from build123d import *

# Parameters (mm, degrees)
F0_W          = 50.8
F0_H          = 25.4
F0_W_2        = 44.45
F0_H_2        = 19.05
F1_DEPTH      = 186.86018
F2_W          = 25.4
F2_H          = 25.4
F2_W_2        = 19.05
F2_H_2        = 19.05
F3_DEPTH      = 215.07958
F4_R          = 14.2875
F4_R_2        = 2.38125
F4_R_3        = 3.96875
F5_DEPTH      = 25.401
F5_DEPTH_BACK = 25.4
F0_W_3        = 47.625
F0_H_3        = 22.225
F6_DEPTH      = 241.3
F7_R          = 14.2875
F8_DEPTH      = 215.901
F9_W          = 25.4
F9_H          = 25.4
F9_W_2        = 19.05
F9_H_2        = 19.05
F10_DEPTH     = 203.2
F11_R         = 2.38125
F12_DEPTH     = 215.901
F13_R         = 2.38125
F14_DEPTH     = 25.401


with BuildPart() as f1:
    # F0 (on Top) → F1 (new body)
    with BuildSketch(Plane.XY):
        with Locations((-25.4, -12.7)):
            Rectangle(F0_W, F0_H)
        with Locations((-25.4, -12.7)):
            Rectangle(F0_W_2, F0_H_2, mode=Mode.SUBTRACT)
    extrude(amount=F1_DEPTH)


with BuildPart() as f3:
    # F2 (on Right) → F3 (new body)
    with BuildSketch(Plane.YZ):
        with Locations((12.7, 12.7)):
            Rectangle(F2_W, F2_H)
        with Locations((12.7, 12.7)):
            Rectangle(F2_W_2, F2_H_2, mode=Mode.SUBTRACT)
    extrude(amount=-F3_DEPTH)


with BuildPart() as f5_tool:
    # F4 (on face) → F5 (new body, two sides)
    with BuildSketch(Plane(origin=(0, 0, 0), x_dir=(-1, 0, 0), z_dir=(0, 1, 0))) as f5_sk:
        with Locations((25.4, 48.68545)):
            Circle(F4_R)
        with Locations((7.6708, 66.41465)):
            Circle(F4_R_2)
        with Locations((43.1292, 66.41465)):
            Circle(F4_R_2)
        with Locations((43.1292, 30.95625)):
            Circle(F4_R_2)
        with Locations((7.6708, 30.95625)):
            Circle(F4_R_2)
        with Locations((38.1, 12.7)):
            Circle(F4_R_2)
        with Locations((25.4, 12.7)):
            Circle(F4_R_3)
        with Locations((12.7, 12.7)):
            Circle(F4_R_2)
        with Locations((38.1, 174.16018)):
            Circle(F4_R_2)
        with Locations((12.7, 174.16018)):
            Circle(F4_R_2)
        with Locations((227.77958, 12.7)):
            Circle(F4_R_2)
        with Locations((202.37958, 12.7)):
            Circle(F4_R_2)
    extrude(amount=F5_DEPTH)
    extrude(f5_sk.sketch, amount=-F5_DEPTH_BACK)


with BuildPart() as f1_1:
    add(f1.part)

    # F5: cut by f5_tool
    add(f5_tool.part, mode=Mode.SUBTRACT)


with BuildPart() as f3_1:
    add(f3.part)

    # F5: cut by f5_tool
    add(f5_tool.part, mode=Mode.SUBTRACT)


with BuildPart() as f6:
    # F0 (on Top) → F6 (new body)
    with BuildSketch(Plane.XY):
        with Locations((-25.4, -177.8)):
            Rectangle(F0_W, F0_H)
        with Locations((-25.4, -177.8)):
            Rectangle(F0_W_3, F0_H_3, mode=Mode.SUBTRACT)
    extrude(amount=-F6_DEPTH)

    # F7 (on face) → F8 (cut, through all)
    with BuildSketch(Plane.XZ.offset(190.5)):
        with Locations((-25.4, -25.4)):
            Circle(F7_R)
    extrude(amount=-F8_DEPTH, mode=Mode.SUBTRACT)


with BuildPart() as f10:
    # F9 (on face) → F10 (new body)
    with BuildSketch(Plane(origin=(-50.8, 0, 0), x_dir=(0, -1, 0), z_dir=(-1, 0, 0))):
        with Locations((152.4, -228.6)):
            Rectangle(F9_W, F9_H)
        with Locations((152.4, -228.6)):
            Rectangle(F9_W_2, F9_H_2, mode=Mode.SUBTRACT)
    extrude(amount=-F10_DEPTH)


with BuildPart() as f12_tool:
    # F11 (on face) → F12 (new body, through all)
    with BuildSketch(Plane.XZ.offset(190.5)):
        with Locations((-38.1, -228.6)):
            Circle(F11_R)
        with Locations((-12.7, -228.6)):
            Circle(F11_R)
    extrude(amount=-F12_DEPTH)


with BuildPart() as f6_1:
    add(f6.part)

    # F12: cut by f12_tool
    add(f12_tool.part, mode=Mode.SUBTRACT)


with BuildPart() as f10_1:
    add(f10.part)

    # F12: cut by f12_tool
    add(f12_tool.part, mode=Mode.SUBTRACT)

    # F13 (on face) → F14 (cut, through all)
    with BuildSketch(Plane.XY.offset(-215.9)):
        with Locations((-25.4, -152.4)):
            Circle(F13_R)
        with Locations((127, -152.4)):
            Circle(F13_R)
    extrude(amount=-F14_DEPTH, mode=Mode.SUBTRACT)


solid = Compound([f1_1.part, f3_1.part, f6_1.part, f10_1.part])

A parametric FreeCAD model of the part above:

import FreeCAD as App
import Part
import Sketcher
from FreeCAD import Vector
Q = App.Units.Quantity


def add_polygon(sketch, points):
    """Adds a closed chain of lines whose ends are joined by coincident constraints."""
    first, n = sketch.GeometryCount, len(points)
    for a, b in zip(points, points[1:] + points[:1]):
        sketch.addGeometry(Part.LineSegment(App.Vector(*a, 0), App.Vector(*b, 0)), False)
    for i in range(n):
        sketch.addConstraint(Sketcher.Constraint("Coincident", first + i, 2, first + (i + 1) % n, 1))

doc = App.newDocument("Part")
body = doc.addObject("PartDesign::Body", "Body")

# Sketch on XY plane
sketch1 = body.newObject("Sketcher::SketchObject", "Sketch")
sketch1.AttachmentSupport = (doc.getObject("XY_Plane"), [""])
sketch1.MapMode = "FlatFace"
add_polygon(sketch1, [(-51, 0), (-51, -25), (0, -25), (0, 0)])  # lines 0-3
add_polygon(sketch1, [(-3, -22), (-48, -22), (-48, -3), (-3, -3)])  # lines 4-7
sketch1.addConstraint([
    Sketcher.Constraint("Vertical", 0),
    Sketcher.Constraint("Horizontal", 1),
    Sketcher.Constraint("Vertical", 2),
    Sketcher.Constraint("Horizontal", 3),
    Sketcher.Constraint("Horizontal", 4),
    Sketcher.Constraint("Vertical", 5),
    Sketcher.Constraint("Horizontal", 6),
    Sketcher.Constraint("Vertical", 7),
    Sketcher.Constraint("Coincident", 2, 2, -1, 1),
    Sketcher.Constraint("DistanceX", 1, 1, 1, 2, Q("2 in")),
    Sketcher.Constraint("DistanceY", 0, 2, 0, 1, Q("1 in")),
    Sketcher.Constraint("DistanceX", 4, 2, 4, 1, Q("1.75 in")),
    Sketcher.Constraint("DistanceY", 5, 1, 5, 2, Q("0.75 in")),
    Sketcher.Constraint("DistanceX", 4, 2, -1, 1, Q("1.875 in")),
    Sketcher.Constraint("DistanceY", 4, 2, -1, 1, Q("0.875 in")),
])
pad1 = body.newObject("PartDesign::Pad", "Pad")
pad1.Profile = sketch1
pad1.Length = Q("7.3567 in")
body2 = doc.addObject("PartDesign::Body", "Body001")

# Sketch on YZ plane
sketch2 = body2.newObject("Sketcher::SketchObject", "Sketch001")
sketch2.AttachmentSupport = (doc.getObject("YZ_Plane001"), [""])
sketch2.MapMode = "FlatFace"
add_polygon(sketch2, [(0, 25), (0, 0), (25, 0), (25, 25)])  # lines 0-3
add_polygon(sketch2, [(22, 3), (3, 3), (3, 22), (22, 22)])  # lines 4-7
sketch2.addConstraint([
    Sketcher.Constraint("Vertical", 0),
    Sketcher.Constraint("Horizontal", 1),
    Sketcher.Constraint("Vertical", 2),
    Sketcher.Constraint("Horizontal", 3),
    Sketcher.Constraint("Horizontal", 4),
    Sketcher.Constraint("Vertical", 5),
    Sketcher.Constraint("Horizontal", 6),
    Sketcher.Constraint("Vertical", 7),
    Sketcher.Constraint("Coincident", 0, 2, -1, 1),
    Sketcher.Constraint("Equal", 3, 0),
    Sketcher.Constraint("Equal", 6, 5),
    Sketcher.Constraint("DistanceX", 1, 1, 1, 2, Q("1 in")),
    Sketcher.Constraint("DistanceX", 4, 2, 4, 1, Q("0.75 in")),
    Sketcher.Constraint("DistanceX", -1, 1, 4, 2, Q("0.125 in")),
    Sketcher.Constraint("DistanceY", -1, 1, 4, 2, Q("0.125 in")),
])
pad2 = body2.newObject("PartDesign::Pad", "Pad001")
pad2.Profile = sketch2
pad2.Length = Q("8.4677 in")
pad2.Reversed = True
body3 = doc.addObject("PartDesign::Body", "Body002")
body3.AllowCompound = True

# Sketch on XZ plane
sketch3 = body3.newObject("Sketcher::SketchObject", "Sketch002")
sketch3.AttachmentSupport = (doc.getObject("XZ_Plane002"), [""])
sketch3.MapMode = "FlatFace"
sketch3.addGeometry([
    Part.Circle(Vector(-25.4, 48.7, 0), Vector(0, 0, 1), 14.3),  # 0
    Part.Circle(Vector(-7.7, 66.4, 0), Vector(0, 0, 1), 2.4),  # 1
    Part.Circle(Vector(-43.1, 66.4, 0), Vector(0, 0, 1), 2.4),  # 2
    Part.Circle(Vector(-43.1, 31, 0), Vector(0, 0, 1), 2.4),  # 3
    Part.Circle(Vector(-7.7, 31, 0), Vector(0, 0, 1), 2.4),  # 4
    Part.Circle(Vector(-38.1, 12.7, 0), Vector(0, 0, 1), 2.4),  # 5
    Part.Circle(Vector(-25.4, 12.7, 0), Vector(0, 0, 1), 4),  # 6
    Part.Circle(Vector(-12.7, 12.7, 0), Vector(0, 0, 1), 2.4),  # 7
    Part.Circle(Vector(-38.1, 174.2, 0), Vector(0, 0, 1), 2.4),  # 8
    Part.Circle(Vector(-12.7, 174.2, 0), Vector(0, 0, 1), 2.4),  # 9
    Part.Circle(Vector(-227.8, 12.7, 0), Vector(0, 0, 1), 2.4),  # 10
    Part.Circle(Vector(-202.4, 12.7, 0), Vector(0, 0, 1), 2.4),  # 11
], False)
sketch3.addConstraint([
    Sketcher.Constraint("Equal", 1, 2),
    Sketcher.Constraint("Equal", 2, 3),
    Sketcher.Constraint("Equal", 3, 4),
    Sketcher.Constraint("Equal", 4, 5),
    Sketcher.Constraint("Equal", 5, 7),
    Sketcher.Constraint("Equal", 7, 8),
    Sketcher.Constraint("Equal", 8, 9),
    Sketcher.Constraint("Equal", 9, 10),
    Sketcher.Constraint("Equal", 10, 11),
    Sketcher.Constraint("Horizontal", 1, 3, 2, 3),
    Sketcher.Constraint("Horizontal", 3, 3, 4, 3),
    Sketcher.Constraint("Horizontal", 5, 3, 6, 3),
    Sketcher.Constraint("Horizontal", 6, 3, 7, 3),
    Sketcher.Constraint("Horizontal", 8, 3, 9, 3),
    Sketcher.Constraint("Horizontal", 7, 3, 10, 3),
    Sketcher.Constraint("Horizontal", 10, 3, 11, 3),
    Sketcher.Constraint("Vertical", 2, 3, 3, 3),
    Sketcher.Constraint("Vertical", 1, 3, 4, 3),
    Sketcher.Constraint("Vertical", 0, 3, 6, 3),
    Sketcher.Constraint("Vertical", 5, 3, 8, 3),
    Sketcher.Constraint("Vertical", 7, 3, 9, 3),
    Sketcher.Constraint("Diameter", 0, Q("1.125 in")),
    Sketcher.Constraint("Diameter", 1, Q("0.1875 in")),
    Sketcher.Constraint("Diameter", 6, Q("0.3125 in")),
    Sketcher.Constraint("DistanceX", 0, 3, -1, 1, Q("1 in")),
    Sketcher.Constraint("DistanceX", 5, 3, 7, 3, Q("1 in")),
    Sketcher.Constraint("DistanceX", 10, 3, 11, 3, Q("1 in")),
    Sketcher.Constraint("DistanceX", 5, 3, -1, 1, Q("1.5 in")),
    Sketcher.Constraint("DistanceY", -1, 1, 5, 3, Q("0.5 in")),
    Sketcher.Constraint("DistanceX", 1, 3, -1, 1, Q("0.302 in")),
    Sketcher.Constraint("DistanceX", 2, 3, -1, 1, Q("1.698 in")),
    Sketcher.Constraint("DistanceY", -1, 1, 3, 3, Q("1.21875 in")),
    Sketcher.Constraint("DistanceY", 0, 3, 1, 3, Q("0.698 in")),
    Sketcher.Constraint("DistanceY", 3, 3, 0, 3, Q("0.698 in")),
    Sketcher.Constraint("DistanceY", -1, 1, 8, 3, Q("6.8567 in")),
    Sketcher.Constraint("DistanceX", 10, 3, -1, 1, Q("8.9677 in")),
])
pad3 = body3.newObject("PartDesign::Pad", "Pad002")
pad3.Profile = sketch3
pad3.Type = "TwoLengths"
pad3.Length = 25.401
pad3.Length2 = Q("1 in")
pad3.Reversed = True
doc.recompute()

body4 = doc.addObject("PartDesign::Body", "Body003")
body4.BaseFeature = body3
boolean = body.newObject("PartDesign::Boolean", "Boolean")
boolean.Type = "Cut"
boolean.addObjects([body4])
doc.recompute()

boolean2 = body2.newObject("PartDesign::Boolean", "Boolean001")
boolean2.Type = "Cut"
boolean2.addObjects([body3])
body5 = doc.addObject("PartDesign::Body", "Body004")

# Sketch on XY plane
sketch4 = body5.newObject("Sketcher::SketchObject", "Sketch003")
sketch4.AttachmentSupport = (doc.getObject("XY_Plane004"), [""])
sketch4.MapMode = "FlatFace"
add_polygon(sketch4, [(-51, -165), (-51, -190), (0, -190), (0, -165)])  # lines 0-3
add_polygon(sketch4, [(-2, -189), (-49, -189), (-49, -167), (-2, -167)])  # lines 4-7
sketch4.addConstraint([
    Sketcher.Constraint("Vertical", 0),
    Sketcher.Constraint("Horizontal", 1),
    Sketcher.Constraint("Vertical", 2),
    Sketcher.Constraint("Horizontal", 3),
    Sketcher.Constraint("Horizontal", 4),
    Sketcher.Constraint("Vertical", 5),
    Sketcher.Constraint("Horizontal", 6),
    Sketcher.Constraint("Vertical", 7),
    Sketcher.Constraint("PointOnObject", 1, 2, -2),
    Sketcher.Constraint("DistanceX", 1, 1, 1, 2, Q("2 in")),
    Sketcher.Constraint("DistanceY", 0, 2, 0, 1, Q("1 in")),
    Sketcher.Constraint("DistanceY", 0, 2, -1, 1, Q("7.5 in")),
    Sketcher.Constraint("DistanceX", 4, 2, 4, 1, Q("1.875 in")),
    Sketcher.Constraint("DistanceY", 5, 1, 5, 2, Q("0.875 in")),
    Sketcher.Constraint("DistanceX", 4, 2, -1, 1, Q("1.9375 in")),
    Sketcher.Constraint("DistanceY", 4, 2, -1, 1, Q("7.4375 in")),
])
pad4 = body5.newObject("PartDesign::Pad", "Pad003")
pad4.Profile = sketch4
pad4.Length = Q("9.5 in")
pad4.Reversed = True

# Sketch on XZ plane
sketch5 = body5.newObject("Sketcher::SketchObject", "Sketch004")
sketch5.AttachmentSupport = (doc.getObject("XZ_Plane004"), [""])
sketch5.MapMode = "FlatFace"
sketch5.AttachmentOffset = App.Placement(Vector(0, 0, 7.5 * 25.4), App.Rotation())
sketch5.addGeometry(Part.Circle(Vector(-25, -25, 0), Vector(0, 0, 1), 14), False)
sketch5.addConstraint([
    Sketcher.Constraint("Diameter", 0, Q("1.125 in")),
    Sketcher.Constraint("DistanceX", 0, 3, -1, 1, Q("1 in")),
    Sketcher.Constraint("DistanceY", 0, 3, -1, 1, Q("1 in")),
])
pocket1 = body5.newObject("PartDesign::Pocket", "Pocket")
pocket1.Profile = sketch5
pocket1.Type = "ThroughAll"
body6 = doc.addObject("PartDesign::Body", "Body005")

# Sketch on YZ plane
sketch6 = body6.newObject("Sketcher::SketchObject", "Sketch005")
sketch6.AttachmentSupport = (doc.getObject("YZ_Plane005"), [""])
sketch6.MapMode = "FlatFace"
sketch6.AttachmentOffset = App.Placement(Vector(0, 0, -2 * 25.4), App.Rotation())
add_polygon(sketch6, [(-140, -216), (-140, -241), (-165, -241), (-165, -216)])  # lines 0-3
add_polygon(sketch6, [(-162, -238), (-143, -238), (-143, -219), (-162, -219)])  # lines 4-7
sketch6.addConstraint([
    Sketcher.Constraint("Vertical", 0),
    Sketcher.Constraint("Horizontal", 1),
    Sketcher.Constraint("Vertical", 2),
    Sketcher.Constraint("Horizontal", 3),
    Sketcher.Constraint("Horizontal", 4),
    Sketcher.Constraint("Vertical", 5),
    Sketcher.Constraint("Horizontal", 6),
    Sketcher.Constraint("Vertical", 7),
    Sketcher.Constraint("Equal", 3, 0),
    Sketcher.Constraint("Equal", 6, 5),
    Sketcher.Constraint("DistanceX", 1, 2, 1, 1, Q("1 in")),
    Sketcher.Constraint("DistanceX", 4, 1, 4, 2, Q("0.75 in")),
    Sketcher.Constraint("DistanceX", 0, 2, -1, 1, Q("5.5 in")),
    Sketcher.Constraint("DistanceY", 0, 2, -1, 1, Q("9.5 in")),
    Sketcher.Constraint("DistanceX", 4, 2, -1, 1, Q("5.625 in")),
    Sketcher.Constraint("DistanceY", 4, 2, -1, 1, Q("9.375 in")),
])
pad5 = body6.newObject("PartDesign::Pad", "Pad004")
pad5.Profile = sketch6
pad5.Length = Q("8 in")
body7 = doc.addObject("PartDesign::Body", "Body006")
body7.AllowCompound = True

# Sketch on XZ plane
sketch7 = body7.newObject("Sketcher::SketchObject", "Sketch006")
sketch7.AttachmentSupport = (doc.getObject("XZ_Plane006"), [""])
sketch7.MapMode = "FlatFace"
sketch7.AttachmentOffset = App.Placement(Vector(0, 0, 7.5 * 25.4), App.Rotation())
sketch7.addGeometry([
    Part.Circle(Vector(-38.1, -228.6, 0), Vector(0, 0, 1), 2.4),
    Part.Circle(Vector(-12.7, -228.6, 0), Vector(0, 0, 1), 2.4),
], False)
sketch7.addConstraint([
    Sketcher.Constraint("Equal", 0, 1),
    Sketcher.Constraint("Horizontal", 0, 3, 1, 3),
    Sketcher.Constraint("Diameter", 0, Q("0.1875 in")),
    Sketcher.Constraint("DistanceY", 0, 3, -1, 1, Q("9 in")),
    Sketcher.Constraint("DistanceX", 0, 3, 1, 3, Q("1 in")),
    Sketcher.Constraint("DistanceX", 0, 3, -1, 1, Q("1.5 in")),
])
pad6 = body7.newObject("PartDesign::Pad", "Pad005")
pad6.Profile = sketch7
pad6.Length = 215.901
pad6.Reversed = True
doc.recompute()

body8 = doc.addObject("PartDesign::Body", "Body007")
body8.BaseFeature = body7
boolean3 = body5.newObject("PartDesign::Boolean", "Boolean002")
boolean3.Type = "Cut"
boolean3.addObjects([body8])
doc.recompute()

boolean4 = body6.newObject("PartDesign::Boolean", "Boolean003")
boolean4.Type = "Cut"
boolean4.addObjects([body7])

# Sketch on XY plane
sketch8 = body6.newObject("Sketcher::SketchObject", "Sketch007")
sketch8.AttachmentSupport = (doc.getObject("XY_Plane005"), [""])
sketch8.MapMode = "FlatFace"
sketch8.AttachmentOffset = App.Placement(Vector(0, 0, -8.5 * 25.4), App.Rotation())
sketch8.addGeometry([
    Part.Circle(Vector(-25.4, -152.4, 0), Vector(0, 0, 1), 2.4),
    Part.Circle(Vector(127, -152.4, 0), Vector(0, 0, 1), 2.4),
], False)
sketch8.addConstraint([
    Sketcher.Constraint("Equal", 0, 1),
    Sketcher.Constraint("Horizontal", 0, 3, 1, 3),
    Sketcher.Constraint("Diameter", 0, Q("0.1875 in")),
    Sketcher.Constraint("DistanceX", 0, 3, -1, 1, Q("1 in")),
    Sketcher.Constraint("DistanceY", 0, 3, -1, 1, Q("6 in")),
    Sketcher.Constraint("DistanceX", -1, 1, 1, 3, Q("5 in")),
])
pocket2 = body6.newObject("PartDesign::Pocket", "Pocket001")
pocket2.Profile = sketch8
pocket2.Type = "ThroughAll"

doc.recompute()
